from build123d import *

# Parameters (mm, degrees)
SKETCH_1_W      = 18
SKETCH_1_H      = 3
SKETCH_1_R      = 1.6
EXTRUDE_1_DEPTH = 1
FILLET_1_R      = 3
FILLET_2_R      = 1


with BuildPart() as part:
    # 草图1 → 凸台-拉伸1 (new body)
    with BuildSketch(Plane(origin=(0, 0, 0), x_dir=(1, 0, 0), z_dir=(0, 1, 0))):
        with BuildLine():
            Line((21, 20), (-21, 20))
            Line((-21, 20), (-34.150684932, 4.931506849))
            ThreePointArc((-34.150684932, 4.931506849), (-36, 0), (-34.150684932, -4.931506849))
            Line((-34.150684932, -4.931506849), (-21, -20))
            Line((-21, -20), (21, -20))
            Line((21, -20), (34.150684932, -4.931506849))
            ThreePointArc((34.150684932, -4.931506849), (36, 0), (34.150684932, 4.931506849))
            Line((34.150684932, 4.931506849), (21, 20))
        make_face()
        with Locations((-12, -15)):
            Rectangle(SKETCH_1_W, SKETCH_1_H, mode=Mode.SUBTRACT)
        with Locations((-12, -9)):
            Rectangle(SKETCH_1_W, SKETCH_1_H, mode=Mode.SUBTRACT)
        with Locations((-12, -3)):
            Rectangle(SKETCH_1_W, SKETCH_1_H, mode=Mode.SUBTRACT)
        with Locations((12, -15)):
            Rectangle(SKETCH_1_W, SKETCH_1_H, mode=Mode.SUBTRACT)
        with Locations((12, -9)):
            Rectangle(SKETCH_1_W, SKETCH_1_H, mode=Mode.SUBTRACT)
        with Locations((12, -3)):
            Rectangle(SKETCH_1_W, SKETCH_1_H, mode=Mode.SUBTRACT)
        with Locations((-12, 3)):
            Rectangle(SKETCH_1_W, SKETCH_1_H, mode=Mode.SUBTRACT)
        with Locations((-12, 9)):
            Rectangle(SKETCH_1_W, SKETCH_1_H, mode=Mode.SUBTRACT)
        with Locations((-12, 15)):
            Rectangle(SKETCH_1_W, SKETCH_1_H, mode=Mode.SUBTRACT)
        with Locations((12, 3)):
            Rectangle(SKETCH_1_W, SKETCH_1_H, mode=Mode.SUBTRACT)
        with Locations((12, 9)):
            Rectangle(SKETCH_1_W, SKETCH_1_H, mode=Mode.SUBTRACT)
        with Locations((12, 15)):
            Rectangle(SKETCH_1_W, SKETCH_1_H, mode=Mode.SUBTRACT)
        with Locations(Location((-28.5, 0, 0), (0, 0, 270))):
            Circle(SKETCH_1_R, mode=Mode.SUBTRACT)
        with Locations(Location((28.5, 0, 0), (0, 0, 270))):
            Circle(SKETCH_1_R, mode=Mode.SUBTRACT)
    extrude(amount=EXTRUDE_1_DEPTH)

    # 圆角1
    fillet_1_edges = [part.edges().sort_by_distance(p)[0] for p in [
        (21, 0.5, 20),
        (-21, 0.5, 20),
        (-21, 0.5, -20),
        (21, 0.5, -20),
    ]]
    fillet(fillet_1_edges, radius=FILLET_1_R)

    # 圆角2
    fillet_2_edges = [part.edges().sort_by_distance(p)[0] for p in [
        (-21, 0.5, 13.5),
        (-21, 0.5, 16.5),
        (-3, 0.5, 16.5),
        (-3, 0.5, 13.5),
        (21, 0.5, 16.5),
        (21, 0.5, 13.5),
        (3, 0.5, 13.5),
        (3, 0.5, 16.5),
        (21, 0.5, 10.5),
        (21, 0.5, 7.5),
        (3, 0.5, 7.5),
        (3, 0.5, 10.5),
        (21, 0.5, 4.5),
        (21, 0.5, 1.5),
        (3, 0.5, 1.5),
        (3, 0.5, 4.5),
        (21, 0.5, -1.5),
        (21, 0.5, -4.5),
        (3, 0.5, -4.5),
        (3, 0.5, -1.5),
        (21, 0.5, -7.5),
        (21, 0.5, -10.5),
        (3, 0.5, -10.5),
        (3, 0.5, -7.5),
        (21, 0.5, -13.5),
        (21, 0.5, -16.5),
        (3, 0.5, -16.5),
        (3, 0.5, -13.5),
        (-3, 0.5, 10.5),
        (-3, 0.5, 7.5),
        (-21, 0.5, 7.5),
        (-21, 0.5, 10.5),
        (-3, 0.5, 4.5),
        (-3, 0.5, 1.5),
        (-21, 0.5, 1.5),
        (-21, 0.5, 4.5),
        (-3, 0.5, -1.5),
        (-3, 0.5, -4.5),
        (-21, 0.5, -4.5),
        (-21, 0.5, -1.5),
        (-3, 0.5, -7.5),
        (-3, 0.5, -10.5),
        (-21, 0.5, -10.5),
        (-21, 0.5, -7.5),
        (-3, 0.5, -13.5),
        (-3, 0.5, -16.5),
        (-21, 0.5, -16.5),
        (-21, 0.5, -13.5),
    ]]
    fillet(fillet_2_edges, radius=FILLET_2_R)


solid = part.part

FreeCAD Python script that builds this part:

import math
import FreeCAD as App
import Part
import Sketcher
from FreeCAD import Vector
Q = App.Units.Quantity


def edges_at(feature, points):
    """Names of the edges that pass closest to the given points."""
    edges = feature.Shape.Edges
    near = lambda p: min(range(len(edges)), key=lambda i: edges[i].distToShape(Part.Vertex(*p))[0])
    return sorted({f"Edge{near(p) + 1}" for p in points})

doc = App.newDocument("Part")
params = doc.addObject("Spreadsheet::Sheet", "Params")
for row, (alias, value) in enumerate([
    ("sketch1_diameter", "3.2 mm"),
    ("sketch1_radius", "7.5 mm"),
    ("sketch1_width", "42 mm"),
    ("sketch1_width2", "18 mm"),
    ("sketch1_height", "3 mm"),
    ("pad1_length", "1 mm"),
    ("fillet_radius", "3 mm"),
    ("fillet2_radius", "1 mm"),
], start=1):
    params.set(f"A{row}", alias)
    params.set(f"B{row}", "=" + value)
    params.setAlias(f"B{row}", alias)

body = doc.addObject("PartDesign::Body", "Body")

sketch1 = body.newObject("Sketcher::SketchObject", "Sketch")
sketch1.AttachmentSupport = (doc.getObject("XZ_Plane"), [""])
sketch1.MapMode = "FlatFace"
sketch1.addGeometry([
    Part.LineSegment(Vector(21, -20, 0), Vector(-21, -20, 0)),
    Part.LineSegment(Vector(-21, -20, 0), Vector(-34.2, -4.9, 0)),
    Part.ArcOfCircle(Part.Circle(Vector(-28.5, 0, 0), Vector(0, 0, 1), 7.5), math.radians(139), math.radians(221)),
    Part.LineSegment(Vector(-34.2, 4.9, 0), Vector(-21, 20, 0)),
    Part.LineSegment(Vector(-21, 20, 0), Vector(21, 20, 0)),
    Part.LineSegment(Vector(21, 20, 0), Vector(34.2, 4.9, 0)),
    Part.ArcOfCircle(Part.Circle(Vector(28.5, 0, 0), Vector(0, 0, 1), 7.5), math.radians(-41), math.radians(41)),
    Part.LineSegment(Vector(34.2, -4.9, 0), Vector(21, -20, 0)),
    Part.LineSegment(Vector(-3, 16.5, 0), Vector(-21, 16.5, 0)),
    Part.LineSegment(Vector(-21, 16.5, 0), Vector(-21, 13.5, 0)),
    Part.LineSegment(Vector(-21, 13.5, 0), Vector(-3, 13.5, 0)),
    Part.LineSegment(Vector(-3, 13.5, 0), Vector(-3, 16.5, 0)),
    Part.LineSegment(Vector(-3, 10.5, 0), Vector(-21, 10.5, 0)),
    Part.LineSegment(Vector(-21, 10.5, 0), Vector(-21, 7.5, 0)),
    Part.LineSegment(Vector(-21, 7.5, 0), Vector(-3, 7.5, 0)),
    Part.LineSegment(Vector(-3, 7.5, 0), Vector(-3, 10.5, 0)),
    Part.LineSegment(Vector(-3, 4.5, 0), Vector(-21, 4.5, 0)),
    Part.LineSegment(Vector(-21, 4.5, 0), Vector(-21, 1.5, 0)),
    Part.LineSegment(Vector(-21, 1.5, 0), Vector(-3, 1.5, 0)),
    Part.LineSegment(Vector(-3, 1.5, 0), Vector(-3, 4.5, 0)),
    Part.LineSegment(Vector(21, 16.5, 0), Vector(3, 16.5, 0)),
    Part.LineSegment(Vector(3, 16.5, 0), Vector(3, 13.5, 0)),
    Part.LineSegment(Vector(3, 13.5, 0), Vector(21, 13.5, 0)),
    Part.LineSegment(Vector(21, 13.5, 0), Vector(21, 16.5, 0)),
    Part.LineSegment(Vector(21, 10.5, 0), Vector(3, 10.5, 0)),
    Part.LineSegment(Vector(3, 10.5, 0), Vector(3, 7.5, 0)),
    Part.LineSegment(Vector(3, 7.5, 0), Vector(21, 7.5, 0)),
    Part.LineSegment(Vector(21, 7.5, 0), Vector(21, 10.5, 0)),
    Part.LineSegment(Vector(21, 4.5, 0), Vector(3, 4.5, 0)),
    Part.LineSegment(Vector(3, 4.5, 0), Vector(3, 1.5, 0)),
    Part.LineSegment(Vector(3, 1.5, 0), Vector(21, 1.5, 0)),
    Part.LineSegment(Vector(21, 1.5, 0), Vector(21, 4.5, 0)),
    Part.Circle(Vector(-28.5, 0, 0), Vector(0, 0, 1), 1.6),
    Part.LineSegment(Vector(-3, -1.5, 0), Vector(-21, -1.5, 0)),
    Part.LineSegment(Vector(-21, -1.5, 0), Vector(-21, -4.5, 0)),
    Part.LineSegment(Vector(-21, -4.5, 0), Vector(-3, -4.5, 0)),
    Part.LineSegment(Vector(-3, -4.5, 0), Vector(-3, -1.5, 0)),
    Part.LineSegment(Vector(-3, -7.5, 0), Vector(-21, -7.5, 0)),
    Part.LineSegment(Vector(-21, -7.5, 0), Vector(-21, -10.5, 0)),
    Part.LineSegment(Vector(-21, -10.5, 0), Vector(-3, -10.5, 0)),
    Part.LineSegment(Vector(-3, -10.5, 0), Vector(-3, -7.5, 0)),
    Part.LineSegment(Vector(-3, -13.5, 0), Vector(-21, -13.5, 0)),
    Part.LineSegment(Vector(-21, -13.5, 0), Vector(-21, -16.5, 0)),
    Part.LineSegment(Vector(-21, -16.5, 0), Vector(-3, -16.5, 0)),
    Part.LineSegment(Vector(-3, -16.5, 0), Vector(-3, -13.5, 0)),
    Part.LineSegment(Vector(21, -1.5, 0), Vector(3, -1.5, 0)),
    Part.LineSegment(Vector(3, -1.5, 0), Vector(3, -4.5, 0)),
    Part.LineSegment(Vector(3, -4.5, 0), Vector(21, -4.5, 0)),
    Part.LineSegment(Vector(21, -4.5, 0), Vector(21, -1.5, 0)),
    Part.Circle(Vector(28.5, 0, 0), Vector(0, 0, 1), 1.6),
    Part.LineSegment(Vector(21, -7.5, 0), Vector(3, -7.5, 0)),
    Part.LineSegment(Vector(3, -7.5, 0), Vector(3, -10.5, 0)),
    Part.LineSegment(Vector(3, -10.5, 0), Vector(21, -10.5, 0)),
    Part.LineSegment(Vector(21, -10.5, 0), Vector(21, -7.5, 0)),
    Part.LineSegment(Vector(21, -13.5, 0), Vector(3, -13.5, 0)),
    Part.LineSegment(Vector(3, -13.5, 0), Vector(3, -16.5, 0)),
    Part.LineSegment(Vector(3, -16.5, 0), Vector(21, -16.5, 0)),
    Part.LineSegment(Vector(21, -16.5, 0), Vector(21, -13.5, 0)),
], False)
sketch1.addConstraint([
    Sketcher.Constraint("Coincident", 0, 2, 1, 1),
    Sketcher.Constraint("Tangent", 1, 2, 2, 2),
    Sketcher.Constraint("Tangent", 2, 1, 3, 1),
    Sketcher.Constraint("Coincident", 3, 2, 4, 1),
    Sketcher.Constraint("Coincident", 4, 2, 5, 1),
    Sketcher.Constraint("Tangent", 5, 2, 6, 2),
    Sketcher.Constraint("Tangent", 6, 1, 7, 1),
    Sketcher.Constraint("Coincident", 7, 2, 0, 1),
    Sketcher.Constraint("Coincident", 8, 2, 9, 1),
    Sketcher.Constraint("Coincident", 9, 2, 10, 1),
    Sketcher.Constraint("Coincident", 10, 2, 11, 1),
    Sketcher.Constraint("Coincident", 11, 2, 8, 1),
    Sketcher.Constraint("Coincident", 12, 2, 13, 1),
    Sketcher.Constraint("Coincident", 13, 2, 14, 1),
    Sketcher.Constraint("Coincident", 14, 2, 15, 1),
    Sketcher.Constraint("Coincident", 15, 2, 12, 1),
    Sketcher.Constraint("Coincident", 16, 2, 17, 1),
    Sketcher.Constraint("Coincident", 17, 2, 18, 1),
    Sketcher.Constraint("Coincident", 18, 2, 19, 1),
    Sketcher.Constraint("Coincident", 19, 2, 16, 1),
    Sketcher.Constraint("Coincident", 20, 2, 21, 1),
    Sketcher.Constraint("Coincident", 21, 2, 22, 1),
    Sketcher.Constraint("Coincident", 22, 2, 23, 1),
    Sketcher.Constraint("Coincident", 23, 2, 20, 1),
    Sketcher.Constraint("Coincident", 24, 2, 25, 1),
    Sketcher.Constraint("Coincident", 25, 2, 26, 1),
    Sketcher.Constraint("Coincident", 26, 2, 27, 1),
    Sketcher.Constraint("Coincident", 27, 2, 24, 1),
    Sketcher.Constraint("Coincident", 28, 2, 29, 1),
    Sketcher.Constraint("Coincident", 29, 2, 30, 1),
    Sketcher.Constraint("Coincident", 30, 2, 31, 1),
    Sketcher.Constraint("Coincident", 31, 2, 28, 1),
    Sketcher.Constraint("Coincident", 33, 2, 34, 1),
    Sketcher.Constraint("Coincident", 34, 2, 35, 1),
    Sketcher.Constraint("Coincident", 35, 2, 36, 1),
    Sketcher.Constraint("Coincident", 36, 2, 33, 1),
    Sketcher.Constraint("Coincident", 37, 2, 38, 1),
    Sketcher.Constraint("Coincident", 38, 2, 39, 1),
    Sketcher.Constraint("Coincident", 39, 2, 40, 1),
    Sketcher.Constraint("Coincident", 40, 2, 37, 1),
    Sketcher.Constraint("Coincident", 41, 2, 42, 1),
    Sketcher.Constraint("Coincident", 42, 2, 43, 1),
    Sketcher.Constraint("Coincident", 43, 2, 44, 1),
    Sketcher.Constraint("Coincident", 44, 2, 41, 1),
    Sketcher.Constraint("Coincident", 45, 2, 46, 1),
    Sketcher.Constraint("Coincident", 46, 2, 47, 1),
    Sketcher.Constraint("Coincident", 47, 2, 48, 1),
    Sketcher.Constraint("Coincident", 48, 2, 45, 1),
    Sketcher.Constraint("Coincident", 50, 2, 51, 1),
    Sketcher.Constraint("Coincident", 51, 2, 52, 1),
    Sketcher.Constraint("Coincident", 52, 2, 53, 1),
    Sketcher.Constraint("Coincident", 53, 2, 50, 1),
    Sketcher.Constraint("Coincident", 54, 2, 55, 1),
    Sketcher.Constraint("Coincident", 55, 2, 56, 1),
    Sketcher.Constraint("Coincident", 56, 2, 57, 1),
    Sketcher.Constraint("Coincident", 57, 2, 54, 1),
    Sketcher.Constraint("Horizontal", 0),
    Sketcher.Constraint("Horizontal", 4),
    Sketcher.Constraint("Horizontal", 8),
    Sketcher.Constraint("Vertical", 9),
    Sketcher.Constraint("Horizontal", 10),
    Sketcher.Constraint("Vertical", 11),
    Sketcher.Constraint("Horizontal", 12),
    Sketcher.Constraint("Vertical", 13),
    Sketcher.Constraint("Horizontal", 14),
    Sketcher.Constraint("Vertical", 15),
    Sketcher.Constraint("Horizontal", 16),
    Sketcher.Constraint("Vertical", 17),
    Sketcher.Constraint("Horizontal", 18),
    Sketcher.Constraint("Vertical", 19),
    Sketcher.Constraint("Horizontal", 20),
    Sketcher.Constraint("Vertical", 21),
    Sketcher.Constraint("Horizontal", 22),
    Sketcher.Constraint("Vertical", 23),
    Sketcher.Constraint("Horizontal", 24),
    Sketcher.Constraint("Vertical", 25),
    Sketcher.Constraint("Horizontal", 26),
    Sketcher.Constraint("Vertical", 27),
    Sketcher.Constraint("Horizontal", 28),
    Sketcher.Constraint("Vertical", 29),
    Sketcher.Constraint("Horizontal", 30),
    Sketcher.Constraint("Vertical", 31),
    Sketcher.Constraint("Horizontal", 33),
    Sketcher.Constraint("Vertical", 34),
    Sketcher.Constraint("Horizontal", 35),
    Sketcher.Constraint("Vertical", 36),
    Sketcher.Constraint("Horizontal", 37),
    Sketcher.Constraint("Vertical", 38),
    Sketcher.Constraint("Horizontal", 39),
    Sketcher.Constraint("Vertical", 40),
    Sketcher.Constraint("Horizontal", 41),
    Sketcher.Constraint("Vertical", 42),
    Sketcher.Constraint("Horizontal", 43),
    Sketcher.Constraint("Vertical", 44),
    Sketcher.Constraint("Horizontal", 45),
    Sketcher.Constraint("Vertical", 46),
    Sketcher.Constraint("Horizontal", 47),
    Sketcher.Constraint("Vertical", 48),
    Sketcher.Constraint("Horizontal", 50),
    Sketcher.Constraint("Vertical", 51),
    Sketcher.Constraint("Horizontal", 52),
    Sketcher.Constraint("Vertical", 53),
    Sketcher.Constraint("Horizontal", 54),
    Sketcher.Constraint("Vertical", 55),
    Sketcher.Constraint("Horizontal", 56),
    Sketcher.Constraint("Vertical", 57),
    Sketcher.Constraint("Coincident", 32, 3, 2, 3),
    Sketcher.Constraint("Coincident", 49, 3, 6, 3),
    Sketcher.Constraint("Equal", 2, 6),
    Sketcher.Constraint("Equal", 32, 49),
    Sketcher.Constraint("Symmetric", 2, 3, 6, 3, -1, 1),
    Sketcher.Constraint("Symmetric", 0, 2, 4, 2, -1, 1),
    Sketcher.Constraint("Symmetric", 30, 2, 33, 2, -1, 1),
    Sketcher.Constraint("Symmetric", 28, 2, 35, 2, -1, 1),
    Sketcher.Constraint("Symmetric", 26, 2, 37, 2, -1, 1),
    Sketcher.Constraint("Symmetric", 24, 2, 39, 2, -1, 1),
    Sketcher.Constraint("Symmetric", 22, 2, 41, 2, -1, 1),
    Sketcher.Constraint("Symmetric", 20, 2, 43, 2, -1, 1),
    Sketcher.Constraint("Symmetric", 18, 2, 45, 2, -1, 1),
    Sketcher.Constraint("Symmetric", 16, 2, 47, 2, -1, 1),
    Sketcher.Constraint("Symmetric", 14, 2, 50, 2, -1, 1),
    Sketcher.Constraint("Symmetric", 12, 2, 52, 2, -1, 1),
    Sketcher.Constraint("Symmetric", 10, 2, 54, 2, -1, 1),
    Sketcher.Constraint("Symmetric", 8, 2, 56, 2, -1, 1),
    Sketcher.Constraint("Symmetric", 2, 1, 5, 2, -2),
    Sketcher.Constraint("Symmetric", 11, 2, 20, 2, -2),
    Sketcher.Constraint("Symmetric", 9, 2, 22, 2, -2),
    Sketcher.Constraint("Symmetric", 15, 2, 24, 2, -2),
    Sketcher.Constraint("Symmetric", 13, 2, 26, 2, -2),
    Sketcher.Constraint("Symmetric", 19, 2, 28, 2, -2),
    Sketcher.Constraint("Symmetric", 17, 2, 30, 2, -2),
    Sketcher.Constraint("Parallel", 3, 7),
    Sketcher.Constraint("Vertical", 3, 2, 8, 2),
    Sketcher.Constraint("Vertical", 9, 2, 12, 2),
    Sketcher.Constraint("Vertical", 11, 2, 14, 2),
    Sketcher.Constraint("Vertical", 13, 2, 16, 2),
    Sketcher.Constraint("Vertical", 15, 2, 18, 2),
    Sketcher.Constraint("Equal", 11, 13),
    Sketcher.Constraint("Equal", 15, 17),
    Sketcher.Constraint("Diameter", 32, Q("3.2 mm")),
    Sketcher.Constraint("Radius", 2, Q("7.5 mm")),
    Sketcher.Constraint("DistanceX", 0, 2, 0, 1, Q("42 mm")),
    Sketcher.Constraint("DistanceX", 8, 2, 8, 1, Q("18 mm")),
    Sketcher.Constraint("DistanceY", 9, 2, 9, 1, Q("3 mm")),
    Sketcher.Constraint("Distance", 1, Q("20 mm")),
    Sketcher.Constraint("DistanceY", 0, 2, -1, 1, Q("20 mm")),
    Sketcher.Constraint("DistanceY", 12, 2, 9, 2, Q("3 mm")),
    Sketcher.Constraint("DistanceY", 16, 2, 13, 2, Q("3 mm")),
    Sketcher.Constraint("DistanceY", 33, 2, 17, 2, Q("3 mm")),
])
sketch1.setExpression("Constraints[139]", "Params.sketch1_diameter")
sketch1.setExpression("Constraints[140]", "Params.sketch1_radius")
sketch1.setExpression("Constraints[141]", "Params.sketch1_width")
sketch1.setExpression("Constraints[142]", "Params.sketch1_width2")
sketch1.setExpression("Constraints[143]", "Params.sketch1_height")
pad1 = body.newObject("PartDesign::Pad", "Pad")
pad1.Profile = sketch1
pad1.setExpression("Length", "Params.pad1_length")
pad1.Reversed = True
doc.recompute()

fillet = body.newObject("PartDesign::Fillet", "Fillet")
fillet.Base = (pad1, edges_at(pad1, [
    (21, 0.5, 20),
    (-21, 0.5, 20),
    (-21, 0.5, -20),
    (21, 0.5, -20),
]))
fillet.setExpression("Radius", "Params.fillet_radius")
doc.recompute()

fillet2 = body.newObject("PartDesign::Fillet", "Fillet001")
fillet2.Base = (fillet, edges_at(fillet, [
    (-21, 0.5, 13.5),
    (-21, 0.5, 16.5),
    (-3, 0.5, 16.5),
    (-3, 0.5, 13.5),
    (21, 0.5, 16.5),
    (21, 0.5, 13.5),
    (3, 0.5, 13.5),
    (3, 0.5, 16.5),
    (21, 0.5, 10.5),
    (21, 0.5, 7.5),
    (3, 0.5, 7.5),
    (3, 0.5, 10.5),
    (21, 0.5, 4.5),
    (21, 0.5, 1.5),
    (3, 0.5, 1.5),
    (3, 0.5, 4.5),
    (21, 0.5, -1.5),
    (21, 0.5, -4.5),
    (3, 0.5, -4.5),
    (3, 0.5, -1.5),
    (21, 0.5, -7.5),
    (21, 0.5, -10.5),
    (3, 0.5, -10.5),
    (3, 0.5, -7.5),
    (21, 0.5, -13.5),
    (21, 0.5, -16.5),
    (3, 0.5, -16.5),
    (3, 0.5, -13.5),
    (-3, 0.5, 10.5),
    (-3, 0.5, 7.5),
    (-21, 0.5, 7.5),
    (-21, 0.5, 10.5),
    (-3, 0.5, 4.5),
    (-3, 0.5, 1.5),
    (-21, 0.5, 1.5),
    (-21, 0.5, 4.5),
    (-3, 0.5, -1.5),
    (-3, 0.5, -4.5),
    (-21, 0.5, -4.5),
    (-21, 0.5, -1.5),
    (-3, 0.5, -7.5),
    (-3, 0.5, -10.5),
    (-21, 0.5, -10.5),
    (-21, 0.5, -7.5),
    (-3, 0.5, -13.5),
    (-3, 0.5, -16.5),
    (-21, 0.5, -16.5),
    (-21, 0.5, -13.5),
]))
fillet2.setExpression("Radius", "Params.fillet2_radius")

doc.recompute()
